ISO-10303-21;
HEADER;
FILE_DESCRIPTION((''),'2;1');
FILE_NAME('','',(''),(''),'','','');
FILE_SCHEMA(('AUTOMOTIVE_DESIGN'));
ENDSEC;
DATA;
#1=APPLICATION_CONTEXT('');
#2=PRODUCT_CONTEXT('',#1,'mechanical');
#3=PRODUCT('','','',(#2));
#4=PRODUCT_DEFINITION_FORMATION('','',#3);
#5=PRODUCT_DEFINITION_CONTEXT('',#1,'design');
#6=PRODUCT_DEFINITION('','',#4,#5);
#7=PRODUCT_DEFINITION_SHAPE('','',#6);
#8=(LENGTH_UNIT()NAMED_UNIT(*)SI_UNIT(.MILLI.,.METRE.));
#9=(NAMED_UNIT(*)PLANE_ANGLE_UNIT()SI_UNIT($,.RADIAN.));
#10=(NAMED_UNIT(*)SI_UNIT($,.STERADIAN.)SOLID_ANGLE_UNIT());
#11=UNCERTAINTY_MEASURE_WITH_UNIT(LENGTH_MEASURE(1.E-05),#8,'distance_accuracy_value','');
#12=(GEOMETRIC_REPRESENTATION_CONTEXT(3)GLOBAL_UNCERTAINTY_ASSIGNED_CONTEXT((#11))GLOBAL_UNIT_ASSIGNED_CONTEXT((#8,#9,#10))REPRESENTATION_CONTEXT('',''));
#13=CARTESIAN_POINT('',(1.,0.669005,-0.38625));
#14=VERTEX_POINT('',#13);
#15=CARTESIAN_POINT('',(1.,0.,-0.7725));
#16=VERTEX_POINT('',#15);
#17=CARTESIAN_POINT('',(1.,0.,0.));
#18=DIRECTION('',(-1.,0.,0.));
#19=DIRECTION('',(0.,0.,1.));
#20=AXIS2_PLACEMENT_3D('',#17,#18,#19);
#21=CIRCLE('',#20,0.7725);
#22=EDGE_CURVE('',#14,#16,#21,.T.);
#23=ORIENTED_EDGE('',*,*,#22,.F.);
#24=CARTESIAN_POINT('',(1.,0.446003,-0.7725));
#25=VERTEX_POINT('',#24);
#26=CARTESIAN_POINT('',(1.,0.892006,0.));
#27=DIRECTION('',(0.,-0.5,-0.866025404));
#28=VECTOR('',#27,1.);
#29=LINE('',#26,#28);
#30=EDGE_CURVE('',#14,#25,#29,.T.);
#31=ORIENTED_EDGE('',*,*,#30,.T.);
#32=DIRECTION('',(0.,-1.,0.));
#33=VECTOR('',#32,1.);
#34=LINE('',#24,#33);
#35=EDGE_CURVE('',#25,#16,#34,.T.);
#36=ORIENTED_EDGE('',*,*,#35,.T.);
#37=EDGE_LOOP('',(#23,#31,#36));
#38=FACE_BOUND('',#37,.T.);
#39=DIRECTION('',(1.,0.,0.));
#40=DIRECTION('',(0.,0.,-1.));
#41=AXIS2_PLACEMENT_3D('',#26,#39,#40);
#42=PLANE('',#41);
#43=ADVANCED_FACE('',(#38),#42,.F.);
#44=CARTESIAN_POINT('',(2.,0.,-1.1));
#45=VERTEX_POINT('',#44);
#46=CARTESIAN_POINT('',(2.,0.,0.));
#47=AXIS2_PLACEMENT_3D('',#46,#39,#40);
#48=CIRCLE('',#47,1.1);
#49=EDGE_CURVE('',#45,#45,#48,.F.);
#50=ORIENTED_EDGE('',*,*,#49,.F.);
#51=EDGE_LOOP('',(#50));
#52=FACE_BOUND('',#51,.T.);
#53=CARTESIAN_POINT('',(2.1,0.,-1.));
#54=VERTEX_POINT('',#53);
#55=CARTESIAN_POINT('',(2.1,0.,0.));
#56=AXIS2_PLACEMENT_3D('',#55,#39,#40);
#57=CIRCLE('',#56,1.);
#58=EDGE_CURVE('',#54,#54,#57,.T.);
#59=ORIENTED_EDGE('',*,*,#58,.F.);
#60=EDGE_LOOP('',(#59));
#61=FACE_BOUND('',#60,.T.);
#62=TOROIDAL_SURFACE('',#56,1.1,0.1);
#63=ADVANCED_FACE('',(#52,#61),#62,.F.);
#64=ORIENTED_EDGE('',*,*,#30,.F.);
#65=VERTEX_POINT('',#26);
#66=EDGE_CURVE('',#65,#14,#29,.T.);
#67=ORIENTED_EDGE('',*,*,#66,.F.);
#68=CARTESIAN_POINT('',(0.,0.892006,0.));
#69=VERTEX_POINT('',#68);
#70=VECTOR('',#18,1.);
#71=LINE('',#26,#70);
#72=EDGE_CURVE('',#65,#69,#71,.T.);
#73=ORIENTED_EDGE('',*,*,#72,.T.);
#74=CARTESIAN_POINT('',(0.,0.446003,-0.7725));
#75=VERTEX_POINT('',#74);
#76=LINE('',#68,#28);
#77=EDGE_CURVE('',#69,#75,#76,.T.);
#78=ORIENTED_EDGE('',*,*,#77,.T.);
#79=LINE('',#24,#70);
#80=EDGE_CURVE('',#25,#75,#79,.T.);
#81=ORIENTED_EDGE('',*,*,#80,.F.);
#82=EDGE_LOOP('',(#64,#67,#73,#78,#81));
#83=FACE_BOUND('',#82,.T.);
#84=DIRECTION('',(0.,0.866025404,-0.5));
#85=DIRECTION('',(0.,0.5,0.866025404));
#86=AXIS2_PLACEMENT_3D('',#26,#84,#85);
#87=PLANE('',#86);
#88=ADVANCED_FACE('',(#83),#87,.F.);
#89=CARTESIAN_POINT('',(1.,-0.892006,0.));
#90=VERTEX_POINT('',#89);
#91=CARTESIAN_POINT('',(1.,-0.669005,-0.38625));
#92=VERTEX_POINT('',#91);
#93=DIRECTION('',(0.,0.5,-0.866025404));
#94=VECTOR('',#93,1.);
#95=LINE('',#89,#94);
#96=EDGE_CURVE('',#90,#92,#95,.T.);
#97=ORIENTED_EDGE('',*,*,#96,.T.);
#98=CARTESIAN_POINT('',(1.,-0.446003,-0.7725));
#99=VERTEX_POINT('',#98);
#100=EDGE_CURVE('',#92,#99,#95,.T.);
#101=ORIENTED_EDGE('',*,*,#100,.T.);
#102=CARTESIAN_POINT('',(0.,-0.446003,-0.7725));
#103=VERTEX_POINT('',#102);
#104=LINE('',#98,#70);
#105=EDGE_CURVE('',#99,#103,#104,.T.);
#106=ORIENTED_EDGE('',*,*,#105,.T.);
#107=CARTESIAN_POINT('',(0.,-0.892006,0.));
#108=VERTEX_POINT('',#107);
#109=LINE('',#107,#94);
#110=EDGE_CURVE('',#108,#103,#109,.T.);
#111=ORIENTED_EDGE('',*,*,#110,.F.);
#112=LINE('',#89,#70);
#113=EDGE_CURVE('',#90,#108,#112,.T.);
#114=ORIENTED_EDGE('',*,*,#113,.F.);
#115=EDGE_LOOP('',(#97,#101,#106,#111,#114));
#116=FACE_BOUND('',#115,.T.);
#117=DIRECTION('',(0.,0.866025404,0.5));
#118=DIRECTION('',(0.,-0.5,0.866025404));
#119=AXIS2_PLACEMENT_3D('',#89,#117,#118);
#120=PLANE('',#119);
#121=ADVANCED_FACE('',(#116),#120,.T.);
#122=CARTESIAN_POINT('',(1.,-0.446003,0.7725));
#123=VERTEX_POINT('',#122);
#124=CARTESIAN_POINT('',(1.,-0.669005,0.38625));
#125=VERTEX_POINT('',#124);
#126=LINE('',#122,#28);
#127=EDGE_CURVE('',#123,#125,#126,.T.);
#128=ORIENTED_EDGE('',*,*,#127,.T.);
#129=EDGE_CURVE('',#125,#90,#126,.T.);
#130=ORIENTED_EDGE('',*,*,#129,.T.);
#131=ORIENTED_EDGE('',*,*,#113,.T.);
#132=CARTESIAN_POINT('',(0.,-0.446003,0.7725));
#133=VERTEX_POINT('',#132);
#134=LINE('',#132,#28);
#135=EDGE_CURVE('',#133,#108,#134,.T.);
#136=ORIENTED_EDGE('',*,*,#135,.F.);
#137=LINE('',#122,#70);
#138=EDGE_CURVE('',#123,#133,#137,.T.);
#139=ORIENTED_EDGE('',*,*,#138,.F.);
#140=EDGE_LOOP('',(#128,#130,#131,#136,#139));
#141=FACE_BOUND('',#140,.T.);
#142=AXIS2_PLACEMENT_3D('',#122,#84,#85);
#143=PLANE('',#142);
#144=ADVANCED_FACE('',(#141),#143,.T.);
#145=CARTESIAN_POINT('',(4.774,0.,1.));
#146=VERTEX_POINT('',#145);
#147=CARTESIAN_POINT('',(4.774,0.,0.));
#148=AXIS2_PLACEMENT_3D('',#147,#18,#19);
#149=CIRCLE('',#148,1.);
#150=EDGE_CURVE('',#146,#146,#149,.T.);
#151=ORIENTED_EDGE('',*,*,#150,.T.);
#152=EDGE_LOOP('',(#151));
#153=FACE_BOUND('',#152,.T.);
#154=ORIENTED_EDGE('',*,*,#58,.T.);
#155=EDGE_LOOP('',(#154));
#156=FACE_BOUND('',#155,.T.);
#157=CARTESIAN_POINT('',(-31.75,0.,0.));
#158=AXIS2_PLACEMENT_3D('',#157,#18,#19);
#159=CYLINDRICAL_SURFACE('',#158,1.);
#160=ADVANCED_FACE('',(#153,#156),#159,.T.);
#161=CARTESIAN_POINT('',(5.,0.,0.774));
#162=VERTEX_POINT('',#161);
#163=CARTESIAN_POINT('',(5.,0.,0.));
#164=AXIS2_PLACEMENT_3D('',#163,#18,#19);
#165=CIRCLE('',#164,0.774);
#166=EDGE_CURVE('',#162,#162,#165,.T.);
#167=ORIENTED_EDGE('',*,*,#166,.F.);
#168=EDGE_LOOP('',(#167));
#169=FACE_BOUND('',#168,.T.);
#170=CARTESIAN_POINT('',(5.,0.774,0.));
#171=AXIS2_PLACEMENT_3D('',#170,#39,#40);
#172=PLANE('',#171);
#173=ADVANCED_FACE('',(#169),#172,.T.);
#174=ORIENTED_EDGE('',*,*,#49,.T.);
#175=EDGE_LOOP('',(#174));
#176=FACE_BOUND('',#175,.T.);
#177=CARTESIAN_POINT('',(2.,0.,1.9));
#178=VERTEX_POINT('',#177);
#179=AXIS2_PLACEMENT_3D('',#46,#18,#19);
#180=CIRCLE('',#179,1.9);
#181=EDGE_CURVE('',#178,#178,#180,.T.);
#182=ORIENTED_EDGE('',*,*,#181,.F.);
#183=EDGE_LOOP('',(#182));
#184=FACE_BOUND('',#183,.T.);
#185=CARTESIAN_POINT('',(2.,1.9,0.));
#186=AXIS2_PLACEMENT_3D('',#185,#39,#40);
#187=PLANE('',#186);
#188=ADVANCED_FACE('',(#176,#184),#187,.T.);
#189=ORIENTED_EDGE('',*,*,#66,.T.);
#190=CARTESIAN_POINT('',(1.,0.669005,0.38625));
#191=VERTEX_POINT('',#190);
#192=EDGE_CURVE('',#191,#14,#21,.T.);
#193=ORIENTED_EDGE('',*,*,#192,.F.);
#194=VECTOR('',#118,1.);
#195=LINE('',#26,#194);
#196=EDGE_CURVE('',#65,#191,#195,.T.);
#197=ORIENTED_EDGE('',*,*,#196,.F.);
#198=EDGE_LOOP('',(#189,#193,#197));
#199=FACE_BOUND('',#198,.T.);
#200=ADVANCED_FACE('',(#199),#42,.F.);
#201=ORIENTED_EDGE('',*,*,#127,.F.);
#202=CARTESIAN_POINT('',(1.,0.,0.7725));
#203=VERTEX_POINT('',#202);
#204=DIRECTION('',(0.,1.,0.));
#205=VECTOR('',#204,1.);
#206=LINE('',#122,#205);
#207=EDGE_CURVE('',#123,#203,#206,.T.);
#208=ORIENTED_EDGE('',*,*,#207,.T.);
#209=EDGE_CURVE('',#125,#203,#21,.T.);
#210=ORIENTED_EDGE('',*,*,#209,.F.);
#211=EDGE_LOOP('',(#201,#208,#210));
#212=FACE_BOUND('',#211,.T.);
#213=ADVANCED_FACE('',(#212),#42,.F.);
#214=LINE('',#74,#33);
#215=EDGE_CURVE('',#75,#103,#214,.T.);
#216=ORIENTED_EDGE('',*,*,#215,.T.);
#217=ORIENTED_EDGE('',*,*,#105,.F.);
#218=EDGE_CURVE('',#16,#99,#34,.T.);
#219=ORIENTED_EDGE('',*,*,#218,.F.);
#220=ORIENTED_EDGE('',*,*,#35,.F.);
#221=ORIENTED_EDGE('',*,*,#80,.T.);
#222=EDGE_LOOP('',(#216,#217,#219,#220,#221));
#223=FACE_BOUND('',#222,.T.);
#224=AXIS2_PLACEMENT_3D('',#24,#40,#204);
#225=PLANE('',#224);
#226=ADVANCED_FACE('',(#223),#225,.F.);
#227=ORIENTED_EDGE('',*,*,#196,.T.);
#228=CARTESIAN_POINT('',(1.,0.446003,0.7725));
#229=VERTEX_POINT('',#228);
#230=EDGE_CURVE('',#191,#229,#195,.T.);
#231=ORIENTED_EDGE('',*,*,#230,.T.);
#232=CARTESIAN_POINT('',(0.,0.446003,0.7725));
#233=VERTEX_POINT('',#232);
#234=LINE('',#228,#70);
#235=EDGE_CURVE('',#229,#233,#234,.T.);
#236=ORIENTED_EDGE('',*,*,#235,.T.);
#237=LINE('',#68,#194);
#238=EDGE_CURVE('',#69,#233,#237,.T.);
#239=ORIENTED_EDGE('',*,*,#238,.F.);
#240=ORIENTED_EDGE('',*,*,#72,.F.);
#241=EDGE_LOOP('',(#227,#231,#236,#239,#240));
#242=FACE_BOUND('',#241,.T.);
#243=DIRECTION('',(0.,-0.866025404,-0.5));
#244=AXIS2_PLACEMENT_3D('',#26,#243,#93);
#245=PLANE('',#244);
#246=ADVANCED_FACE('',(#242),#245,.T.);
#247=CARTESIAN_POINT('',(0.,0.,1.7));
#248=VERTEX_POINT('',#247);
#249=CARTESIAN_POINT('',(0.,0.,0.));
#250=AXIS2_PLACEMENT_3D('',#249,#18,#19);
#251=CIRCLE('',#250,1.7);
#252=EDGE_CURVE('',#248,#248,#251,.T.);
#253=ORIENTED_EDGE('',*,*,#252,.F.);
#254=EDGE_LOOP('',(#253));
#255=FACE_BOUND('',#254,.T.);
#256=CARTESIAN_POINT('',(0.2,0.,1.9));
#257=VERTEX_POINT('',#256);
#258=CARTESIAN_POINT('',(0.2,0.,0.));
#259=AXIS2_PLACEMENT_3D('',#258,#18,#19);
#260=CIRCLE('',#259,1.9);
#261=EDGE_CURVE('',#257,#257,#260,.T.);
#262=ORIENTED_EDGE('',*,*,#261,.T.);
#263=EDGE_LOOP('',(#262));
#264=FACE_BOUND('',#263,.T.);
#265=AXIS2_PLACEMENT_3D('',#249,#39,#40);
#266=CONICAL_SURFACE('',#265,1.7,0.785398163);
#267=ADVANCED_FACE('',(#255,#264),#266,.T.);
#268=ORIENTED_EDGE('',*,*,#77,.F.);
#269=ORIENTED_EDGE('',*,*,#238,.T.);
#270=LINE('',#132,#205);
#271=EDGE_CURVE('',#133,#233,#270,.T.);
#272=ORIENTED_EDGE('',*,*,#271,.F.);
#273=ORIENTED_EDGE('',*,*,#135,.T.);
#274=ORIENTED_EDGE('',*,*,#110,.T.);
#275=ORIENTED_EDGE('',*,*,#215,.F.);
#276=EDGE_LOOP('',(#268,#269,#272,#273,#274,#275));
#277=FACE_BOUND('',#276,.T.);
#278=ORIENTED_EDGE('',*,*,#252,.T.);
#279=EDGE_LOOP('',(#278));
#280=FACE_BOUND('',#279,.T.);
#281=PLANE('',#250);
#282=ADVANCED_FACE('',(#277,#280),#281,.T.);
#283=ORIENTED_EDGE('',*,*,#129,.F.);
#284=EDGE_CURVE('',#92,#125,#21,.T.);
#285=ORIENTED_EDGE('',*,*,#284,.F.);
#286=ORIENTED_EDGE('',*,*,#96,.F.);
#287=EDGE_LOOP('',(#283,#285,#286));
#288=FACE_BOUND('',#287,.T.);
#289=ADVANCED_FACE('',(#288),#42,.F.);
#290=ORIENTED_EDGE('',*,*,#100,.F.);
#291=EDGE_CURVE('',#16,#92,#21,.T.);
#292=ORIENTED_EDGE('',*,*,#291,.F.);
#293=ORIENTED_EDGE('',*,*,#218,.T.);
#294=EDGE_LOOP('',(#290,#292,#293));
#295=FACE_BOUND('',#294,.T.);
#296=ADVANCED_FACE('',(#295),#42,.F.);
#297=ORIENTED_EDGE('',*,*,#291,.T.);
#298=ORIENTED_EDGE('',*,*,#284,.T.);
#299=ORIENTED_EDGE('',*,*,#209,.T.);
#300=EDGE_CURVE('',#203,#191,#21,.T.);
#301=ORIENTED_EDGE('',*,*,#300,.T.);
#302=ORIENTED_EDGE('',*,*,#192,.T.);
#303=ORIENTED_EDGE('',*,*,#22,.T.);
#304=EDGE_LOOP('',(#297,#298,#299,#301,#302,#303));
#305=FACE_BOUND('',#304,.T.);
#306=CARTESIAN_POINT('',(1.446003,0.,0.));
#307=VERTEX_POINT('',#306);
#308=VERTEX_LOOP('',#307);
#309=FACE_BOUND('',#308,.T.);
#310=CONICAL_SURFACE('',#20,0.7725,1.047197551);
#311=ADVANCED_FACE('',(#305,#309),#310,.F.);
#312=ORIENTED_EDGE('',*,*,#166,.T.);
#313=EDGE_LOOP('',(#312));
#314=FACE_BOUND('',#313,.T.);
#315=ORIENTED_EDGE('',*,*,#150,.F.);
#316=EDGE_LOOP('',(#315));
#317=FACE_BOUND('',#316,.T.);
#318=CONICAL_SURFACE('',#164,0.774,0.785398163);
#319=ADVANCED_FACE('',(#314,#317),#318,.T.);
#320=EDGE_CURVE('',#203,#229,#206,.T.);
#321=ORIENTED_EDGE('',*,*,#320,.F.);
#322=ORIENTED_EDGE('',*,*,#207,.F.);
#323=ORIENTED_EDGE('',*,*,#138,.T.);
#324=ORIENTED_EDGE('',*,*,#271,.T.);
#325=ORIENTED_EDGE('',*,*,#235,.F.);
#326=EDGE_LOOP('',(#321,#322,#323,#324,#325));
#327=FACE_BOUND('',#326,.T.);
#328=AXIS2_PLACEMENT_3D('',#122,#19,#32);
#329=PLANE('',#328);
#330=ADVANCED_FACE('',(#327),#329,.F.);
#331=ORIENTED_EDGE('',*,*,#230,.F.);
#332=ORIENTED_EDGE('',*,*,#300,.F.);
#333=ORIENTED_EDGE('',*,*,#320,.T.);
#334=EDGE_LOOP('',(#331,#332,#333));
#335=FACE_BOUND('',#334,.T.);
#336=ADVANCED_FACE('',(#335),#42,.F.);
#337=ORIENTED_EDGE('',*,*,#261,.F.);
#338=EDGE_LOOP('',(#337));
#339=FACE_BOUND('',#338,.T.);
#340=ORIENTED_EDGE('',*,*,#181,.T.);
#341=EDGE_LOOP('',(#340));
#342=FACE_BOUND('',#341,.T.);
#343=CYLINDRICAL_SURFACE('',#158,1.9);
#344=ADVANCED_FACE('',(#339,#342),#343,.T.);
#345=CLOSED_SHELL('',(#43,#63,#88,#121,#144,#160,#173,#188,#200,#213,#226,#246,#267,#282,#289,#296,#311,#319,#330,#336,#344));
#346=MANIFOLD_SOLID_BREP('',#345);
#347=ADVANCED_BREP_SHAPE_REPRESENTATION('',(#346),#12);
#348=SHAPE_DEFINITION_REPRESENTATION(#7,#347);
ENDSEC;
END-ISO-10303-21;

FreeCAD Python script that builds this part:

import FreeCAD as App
import Part
import Sketcher

V = App.Vector
Q = App.Units.Quantity


def edges_at(feature, points):
    """Names of the edges that pass closest to the given points."""
    edges = feature.Shape.Edges
    near = lambda p: min(range(len(edges)), key=lambda i: edges[i].distToShape(Part.Vertex(*p))[0])
    return sorted({f"Edge{near(p) + 1}" for p in points})

doc = App.newDocument("Part")
params = doc.addObject("Spreadsheet::Sheet", "Params")
for row, (alias, value) in enumerate([
    ("sketch1_width", "5 mm"),
    ("sketch1_width2", "1.8 mm"),
    ("sketch1_height", "1.7 mm"),
    ("sketch1_height2", "0.9 mm"),
    ("revolution_angle", "360 deg"),
    ("fillet_radius", "0.1 mm"),
    ("sketch2_width", "1 mm"),
    ("groove_angle", "360 deg"),
    ("pocket1_length", "1 mm"),
], start=1):
    params.set(f"A{row}", alias)
    params.set(f"B{row}", "=" + value)
    params.setAlias(f"B{row}", alias)

body = doc.addObject("PartDesign::Body", "Body")

# Sketch on XY plane
sketch1 = doc.addObject("Sketcher::SketchObject", "Sketch")
body.addObject(sketch1)
sketch1.AttachmentSupport = (doc.XY_Plane, [""])
sketch1.MapMode = "FlatFace"
sketch1.addGeometry(Part.LineSegment(V(0, 1.7, 0), V(0, 0, 0)), False)
sketch1.addGeometry(Part.LineSegment(V(0, 0, 0), V(5, 0, 0)), False)
sketch1.addGeometry(Part.LineSegment(V(5, 0, 0), V(5, 0.77, 0)), False)
sketch1.addGeometry(Part.LineSegment(V(5, 0.77, 0), V(4.77, 1, 0)), False)
sketch1.addGeometry(Part.LineSegment(V(4.77, 1, 0), V(2, 1, 0)), False)
sketch1.addGeometry(Part.LineSegment(V(2, 1, 0), V(2, 1.9, 0)), False)
sketch1.addGeometry(Part.LineSegment(V(2, 1.9, 0), V(0.2, 1.9, 0)), False)
sketch1.addGeometry(Part.LineSegment(V(0.2, 1.9, 0), V(0, 1.7, 0)), False)
sketch1.addConstraint(Sketcher.Constraint("Coincident", 0, 2, 1, 1))
sketch1.addConstraint(Sketcher.Constraint("Coincident", 1, 2, 2, 1))
sketch1.addConstraint(Sketcher.Constraint("Coincident", 2, 2, 3, 1))
sketch1.addConstraint(Sketcher.Constraint("Coincident", 3, 2, 4, 1))
sketch1.addConstraint(Sketcher.Constraint("Coincident", 4, 2, 5, 1))
sketch1.addConstraint(Sketcher.Constraint("Coincident", 5, 2, 6, 1))
sketch1.addConstraint(Sketcher.Constraint("Coincident", 6, 2, 7, 1))
sketch1.addConstraint(Sketcher.Constraint("Coincident", 7, 2, 0, 1))
sketch1.addConstraint(Sketcher.Constraint("Vertical", 0))
sketch1.addConstraint(Sketcher.Constraint("Horizontal", 1))
sketch1.addConstraint(Sketcher.Constraint("Vertical", 2))
sketch1.addConstraint(Sketcher.Constraint("Horizontal", 4))
sketch1.addConstraint(Sketcher.Constraint("Vertical", 5))
sketch1.addConstraint(Sketcher.Constraint("Horizontal", 6))
sketch1.addConstraint(Sketcher.Constraint("Coincident", 0, 2, -1, 1))
sketch1.addConstraint(Sketcher.Constraint("Perpendicular", 3, 7))
sketch1.addConstraint(Sketcher.Constraint("DistanceX", 1, 1, 1, 2, Q("5 mm")))
sketch1.addConstraint(Sketcher.Constraint("Angle", 3, Q("135 deg")))
sketch1.addConstraint(Sketcher.Constraint("DistanceX", 6, 2, 6, 1, Q("1.8 mm")))
sketch1.addConstraint(Sketcher.Constraint("DistanceY", 0, 2, 0, 1, Q("1.7 mm")))
sketch1.addConstraint(Sketcher.Constraint("DistanceY", 5, 1, 5, 2, Q("0.9 mm")))
sketch1.addConstraint(Sketcher.Constraint("DistanceY", -1, 1, 3, 2, Q("1 mm")))
sketch1.addConstraint(Sketcher.Constraint("DistanceX", 4, 2, 4, 1, Q("2.774 mm")))
sketch1.setExpression("Constraints[16]", "Params.sketch1_width")
sketch1.setExpression("Constraints[18]", "Params.sketch1_width2")
sketch1.setExpression("Constraints[19]", "Params.sketch1_height")
sketch1.setExpression("Constraints[20]", "Params.sketch1_height2")
revolution = doc.addObject("PartDesign::Revolution", "Revolution")
body.addObject(revolution)
revolution.Profile = sketch1
revolution.ReferenceAxis = (sketch1, ["H_Axis"])
revolution.setExpression("Angle", "Params.revolution_angle")
doc.recompute()

fillet = doc.addObject("PartDesign::Fillet", "Fillet")
body.addObject(fillet)
fillet.Base = (revolution, edges_at(revolution, [(2, 0, -1)]))
fillet.setExpression("Radius", "Params.fillet_radius")

# Sketch on XY plane
sketch2 = doc.addObject("Sketcher::SketchObject", "Sketch001")
body.addObject(sketch2)
sketch2.AttachmentSupport = (doc.XY_Plane, [""])
sketch2.MapMode = "FlatFace"
sketch2.addGeometry(Part.LineSegment(V(1, 0.8, 0), V(0, 0.8, 0)), False)
sketch2.addGeometry(Part.LineSegment(V(0, 0.8, 0), V(0, 0, 0)), False)
sketch2.addGeometry(Part.LineSegment(V(0, 0, 0), V(1.4, 0, 0)), False)
sketch2.addGeometry(Part.LineSegment(V(1.4, 0, 0), V(1, 0.8, 0)), False)
sketch2.addConstraint(Sketcher.Constraint("Coincident", 0, 2, 1, 1))
sketch2.addConstraint(Sketcher.Constraint("Coincident", 1, 2, 2, 1))
sketch2.addConstraint(Sketcher.Constraint("Coincident", 2, 2, 3, 1))
sketch2.addConstraint(Sketcher.Constraint("Coincident", 3, 2, 0, 1))
sketch2.addConstraint(Sketcher.Constraint("Horizontal", 0))
sketch2.addConstraint(Sketcher.Constraint("Vertical", 1))
sketch2.addConstraint(Sketcher.Constraint("Horizontal", 2))
sketch2.addConstraint(Sketcher.Constraint("Coincident", 1, 2, -1, 1))
sketch2.addConstraint(Sketcher.Constraint("DistanceX", 0, 2, 0, 1, Q("1 mm")))
sketch2.addConstraint(Sketcher.Constraint("Angle", 3, Q("120 deg")))
sketch2.addConstraint(Sketcher.Constraint("DistanceY", 1, 2, 1, 1, Q("0.7725 mm")))
sketch2.setExpression("Constraints[8]", "Params.sketch2_width")
groove = doc.addObject("PartDesign::Groove", "Groove")
body.addObject(groove)
groove.Profile = sketch2
groove.ReferenceAxis = (sketch2, ["H_Axis"])
groove.setExpression("Angle", "Params.groove_angle")

# Sketch on YZ plane
sketch3 = doc.addObject("Sketcher::SketchObject", "Sketch002")
body.addObject(sketch3)
sketch3.AttachmentSupport = (doc.YZ_Plane, [""])
sketch3.MapMode = "FlatFace"
sketch3.addGeometry(Part.LineSegment(V(0.9, 0, 0), V(0.4, -0.8, 0)), False)
sketch3.addGeometry(Part.LineSegment(V(0.4, -0.8, 0), V(-0.4, -0.8, 0)), False)
sketch3.addGeometry(Part.LineSegment(V(-0.4, -0.8, 0), V(-0.9, 0, 0)), False)
sketch3.addGeometry(Part.LineSegment(V(-0.9, 0, 0), V(-0.4, 0.8, 0)), False)
sketch3.addGeometry(Part.LineSegment(V(-0.4, 0.8, 0), V(0.4, 0.8, 0)), False)
sketch3.addGeometry(Part.LineSegment(V(0.4, 0.8, 0), V(0.9, 0, 0)), False)
sketch3.addConstraint(Sketcher.Constraint("Coincident", 0, 2, 1, 1))
sketch3.addConstraint(Sketcher.Constraint("Coincident", 1, 2, 2, 1))
sketch3.addConstraint(Sketcher.Constraint("Coincident", 2, 2, 3, 1))
sketch3.addConstraint(Sketcher.Constraint("Coincident", 3, 2, 4, 1))
sketch3.addConstraint(Sketcher.Constraint("Coincident", 4, 2, 5, 1))
sketch3.addConstraint(Sketcher.Constraint("Coincident", 5, 2, 0, 1))
sketch3.addConstraint(Sketcher.Constraint("Horizontal", 1))
sketch3.addConstraint(Sketcher.Constraint("Horizontal", 4))
sketch3.addConstraint(Sketcher.Constraint("Symmetric", 0, 2, 3, 2, -1, 1))
sketch3.addConstraint(Sketcher.Constraint("Symmetric", 2, 2, 5, 2, -1, 1))
sketch3.addConstraint(Sketcher.Constraint("PointOnObject", 2, 2, -1))
sketch3.addConstraint(Sketcher.Constraint("Parallel", 2, 5))
sketch3.addConstraint(Sketcher.Constraint("Vertical", 1, 2, 3, 2))
sketch3.addConstraint(Sketcher.Constraint("Angle", 0, Q("-120 deg")))
sketch3.addConstraint(Sketcher.Constraint("DistanceY", 1, 2, 3, 2, Q("1.545 mm")))
sketch3.addConstraint(Sketcher.Constraint("DistanceX", 1, 2, 1, 1, Q("0.892006 mm")))
pocket1 = doc.addObject("PartDesign::Pocket", "Pocket")
body.addObject(pocket1)
pocket1.Profile = sketch3
pocket1.setExpression("Length", "Params.pocket1_length")
pocket1.Reversed = True

doc.recompute()
